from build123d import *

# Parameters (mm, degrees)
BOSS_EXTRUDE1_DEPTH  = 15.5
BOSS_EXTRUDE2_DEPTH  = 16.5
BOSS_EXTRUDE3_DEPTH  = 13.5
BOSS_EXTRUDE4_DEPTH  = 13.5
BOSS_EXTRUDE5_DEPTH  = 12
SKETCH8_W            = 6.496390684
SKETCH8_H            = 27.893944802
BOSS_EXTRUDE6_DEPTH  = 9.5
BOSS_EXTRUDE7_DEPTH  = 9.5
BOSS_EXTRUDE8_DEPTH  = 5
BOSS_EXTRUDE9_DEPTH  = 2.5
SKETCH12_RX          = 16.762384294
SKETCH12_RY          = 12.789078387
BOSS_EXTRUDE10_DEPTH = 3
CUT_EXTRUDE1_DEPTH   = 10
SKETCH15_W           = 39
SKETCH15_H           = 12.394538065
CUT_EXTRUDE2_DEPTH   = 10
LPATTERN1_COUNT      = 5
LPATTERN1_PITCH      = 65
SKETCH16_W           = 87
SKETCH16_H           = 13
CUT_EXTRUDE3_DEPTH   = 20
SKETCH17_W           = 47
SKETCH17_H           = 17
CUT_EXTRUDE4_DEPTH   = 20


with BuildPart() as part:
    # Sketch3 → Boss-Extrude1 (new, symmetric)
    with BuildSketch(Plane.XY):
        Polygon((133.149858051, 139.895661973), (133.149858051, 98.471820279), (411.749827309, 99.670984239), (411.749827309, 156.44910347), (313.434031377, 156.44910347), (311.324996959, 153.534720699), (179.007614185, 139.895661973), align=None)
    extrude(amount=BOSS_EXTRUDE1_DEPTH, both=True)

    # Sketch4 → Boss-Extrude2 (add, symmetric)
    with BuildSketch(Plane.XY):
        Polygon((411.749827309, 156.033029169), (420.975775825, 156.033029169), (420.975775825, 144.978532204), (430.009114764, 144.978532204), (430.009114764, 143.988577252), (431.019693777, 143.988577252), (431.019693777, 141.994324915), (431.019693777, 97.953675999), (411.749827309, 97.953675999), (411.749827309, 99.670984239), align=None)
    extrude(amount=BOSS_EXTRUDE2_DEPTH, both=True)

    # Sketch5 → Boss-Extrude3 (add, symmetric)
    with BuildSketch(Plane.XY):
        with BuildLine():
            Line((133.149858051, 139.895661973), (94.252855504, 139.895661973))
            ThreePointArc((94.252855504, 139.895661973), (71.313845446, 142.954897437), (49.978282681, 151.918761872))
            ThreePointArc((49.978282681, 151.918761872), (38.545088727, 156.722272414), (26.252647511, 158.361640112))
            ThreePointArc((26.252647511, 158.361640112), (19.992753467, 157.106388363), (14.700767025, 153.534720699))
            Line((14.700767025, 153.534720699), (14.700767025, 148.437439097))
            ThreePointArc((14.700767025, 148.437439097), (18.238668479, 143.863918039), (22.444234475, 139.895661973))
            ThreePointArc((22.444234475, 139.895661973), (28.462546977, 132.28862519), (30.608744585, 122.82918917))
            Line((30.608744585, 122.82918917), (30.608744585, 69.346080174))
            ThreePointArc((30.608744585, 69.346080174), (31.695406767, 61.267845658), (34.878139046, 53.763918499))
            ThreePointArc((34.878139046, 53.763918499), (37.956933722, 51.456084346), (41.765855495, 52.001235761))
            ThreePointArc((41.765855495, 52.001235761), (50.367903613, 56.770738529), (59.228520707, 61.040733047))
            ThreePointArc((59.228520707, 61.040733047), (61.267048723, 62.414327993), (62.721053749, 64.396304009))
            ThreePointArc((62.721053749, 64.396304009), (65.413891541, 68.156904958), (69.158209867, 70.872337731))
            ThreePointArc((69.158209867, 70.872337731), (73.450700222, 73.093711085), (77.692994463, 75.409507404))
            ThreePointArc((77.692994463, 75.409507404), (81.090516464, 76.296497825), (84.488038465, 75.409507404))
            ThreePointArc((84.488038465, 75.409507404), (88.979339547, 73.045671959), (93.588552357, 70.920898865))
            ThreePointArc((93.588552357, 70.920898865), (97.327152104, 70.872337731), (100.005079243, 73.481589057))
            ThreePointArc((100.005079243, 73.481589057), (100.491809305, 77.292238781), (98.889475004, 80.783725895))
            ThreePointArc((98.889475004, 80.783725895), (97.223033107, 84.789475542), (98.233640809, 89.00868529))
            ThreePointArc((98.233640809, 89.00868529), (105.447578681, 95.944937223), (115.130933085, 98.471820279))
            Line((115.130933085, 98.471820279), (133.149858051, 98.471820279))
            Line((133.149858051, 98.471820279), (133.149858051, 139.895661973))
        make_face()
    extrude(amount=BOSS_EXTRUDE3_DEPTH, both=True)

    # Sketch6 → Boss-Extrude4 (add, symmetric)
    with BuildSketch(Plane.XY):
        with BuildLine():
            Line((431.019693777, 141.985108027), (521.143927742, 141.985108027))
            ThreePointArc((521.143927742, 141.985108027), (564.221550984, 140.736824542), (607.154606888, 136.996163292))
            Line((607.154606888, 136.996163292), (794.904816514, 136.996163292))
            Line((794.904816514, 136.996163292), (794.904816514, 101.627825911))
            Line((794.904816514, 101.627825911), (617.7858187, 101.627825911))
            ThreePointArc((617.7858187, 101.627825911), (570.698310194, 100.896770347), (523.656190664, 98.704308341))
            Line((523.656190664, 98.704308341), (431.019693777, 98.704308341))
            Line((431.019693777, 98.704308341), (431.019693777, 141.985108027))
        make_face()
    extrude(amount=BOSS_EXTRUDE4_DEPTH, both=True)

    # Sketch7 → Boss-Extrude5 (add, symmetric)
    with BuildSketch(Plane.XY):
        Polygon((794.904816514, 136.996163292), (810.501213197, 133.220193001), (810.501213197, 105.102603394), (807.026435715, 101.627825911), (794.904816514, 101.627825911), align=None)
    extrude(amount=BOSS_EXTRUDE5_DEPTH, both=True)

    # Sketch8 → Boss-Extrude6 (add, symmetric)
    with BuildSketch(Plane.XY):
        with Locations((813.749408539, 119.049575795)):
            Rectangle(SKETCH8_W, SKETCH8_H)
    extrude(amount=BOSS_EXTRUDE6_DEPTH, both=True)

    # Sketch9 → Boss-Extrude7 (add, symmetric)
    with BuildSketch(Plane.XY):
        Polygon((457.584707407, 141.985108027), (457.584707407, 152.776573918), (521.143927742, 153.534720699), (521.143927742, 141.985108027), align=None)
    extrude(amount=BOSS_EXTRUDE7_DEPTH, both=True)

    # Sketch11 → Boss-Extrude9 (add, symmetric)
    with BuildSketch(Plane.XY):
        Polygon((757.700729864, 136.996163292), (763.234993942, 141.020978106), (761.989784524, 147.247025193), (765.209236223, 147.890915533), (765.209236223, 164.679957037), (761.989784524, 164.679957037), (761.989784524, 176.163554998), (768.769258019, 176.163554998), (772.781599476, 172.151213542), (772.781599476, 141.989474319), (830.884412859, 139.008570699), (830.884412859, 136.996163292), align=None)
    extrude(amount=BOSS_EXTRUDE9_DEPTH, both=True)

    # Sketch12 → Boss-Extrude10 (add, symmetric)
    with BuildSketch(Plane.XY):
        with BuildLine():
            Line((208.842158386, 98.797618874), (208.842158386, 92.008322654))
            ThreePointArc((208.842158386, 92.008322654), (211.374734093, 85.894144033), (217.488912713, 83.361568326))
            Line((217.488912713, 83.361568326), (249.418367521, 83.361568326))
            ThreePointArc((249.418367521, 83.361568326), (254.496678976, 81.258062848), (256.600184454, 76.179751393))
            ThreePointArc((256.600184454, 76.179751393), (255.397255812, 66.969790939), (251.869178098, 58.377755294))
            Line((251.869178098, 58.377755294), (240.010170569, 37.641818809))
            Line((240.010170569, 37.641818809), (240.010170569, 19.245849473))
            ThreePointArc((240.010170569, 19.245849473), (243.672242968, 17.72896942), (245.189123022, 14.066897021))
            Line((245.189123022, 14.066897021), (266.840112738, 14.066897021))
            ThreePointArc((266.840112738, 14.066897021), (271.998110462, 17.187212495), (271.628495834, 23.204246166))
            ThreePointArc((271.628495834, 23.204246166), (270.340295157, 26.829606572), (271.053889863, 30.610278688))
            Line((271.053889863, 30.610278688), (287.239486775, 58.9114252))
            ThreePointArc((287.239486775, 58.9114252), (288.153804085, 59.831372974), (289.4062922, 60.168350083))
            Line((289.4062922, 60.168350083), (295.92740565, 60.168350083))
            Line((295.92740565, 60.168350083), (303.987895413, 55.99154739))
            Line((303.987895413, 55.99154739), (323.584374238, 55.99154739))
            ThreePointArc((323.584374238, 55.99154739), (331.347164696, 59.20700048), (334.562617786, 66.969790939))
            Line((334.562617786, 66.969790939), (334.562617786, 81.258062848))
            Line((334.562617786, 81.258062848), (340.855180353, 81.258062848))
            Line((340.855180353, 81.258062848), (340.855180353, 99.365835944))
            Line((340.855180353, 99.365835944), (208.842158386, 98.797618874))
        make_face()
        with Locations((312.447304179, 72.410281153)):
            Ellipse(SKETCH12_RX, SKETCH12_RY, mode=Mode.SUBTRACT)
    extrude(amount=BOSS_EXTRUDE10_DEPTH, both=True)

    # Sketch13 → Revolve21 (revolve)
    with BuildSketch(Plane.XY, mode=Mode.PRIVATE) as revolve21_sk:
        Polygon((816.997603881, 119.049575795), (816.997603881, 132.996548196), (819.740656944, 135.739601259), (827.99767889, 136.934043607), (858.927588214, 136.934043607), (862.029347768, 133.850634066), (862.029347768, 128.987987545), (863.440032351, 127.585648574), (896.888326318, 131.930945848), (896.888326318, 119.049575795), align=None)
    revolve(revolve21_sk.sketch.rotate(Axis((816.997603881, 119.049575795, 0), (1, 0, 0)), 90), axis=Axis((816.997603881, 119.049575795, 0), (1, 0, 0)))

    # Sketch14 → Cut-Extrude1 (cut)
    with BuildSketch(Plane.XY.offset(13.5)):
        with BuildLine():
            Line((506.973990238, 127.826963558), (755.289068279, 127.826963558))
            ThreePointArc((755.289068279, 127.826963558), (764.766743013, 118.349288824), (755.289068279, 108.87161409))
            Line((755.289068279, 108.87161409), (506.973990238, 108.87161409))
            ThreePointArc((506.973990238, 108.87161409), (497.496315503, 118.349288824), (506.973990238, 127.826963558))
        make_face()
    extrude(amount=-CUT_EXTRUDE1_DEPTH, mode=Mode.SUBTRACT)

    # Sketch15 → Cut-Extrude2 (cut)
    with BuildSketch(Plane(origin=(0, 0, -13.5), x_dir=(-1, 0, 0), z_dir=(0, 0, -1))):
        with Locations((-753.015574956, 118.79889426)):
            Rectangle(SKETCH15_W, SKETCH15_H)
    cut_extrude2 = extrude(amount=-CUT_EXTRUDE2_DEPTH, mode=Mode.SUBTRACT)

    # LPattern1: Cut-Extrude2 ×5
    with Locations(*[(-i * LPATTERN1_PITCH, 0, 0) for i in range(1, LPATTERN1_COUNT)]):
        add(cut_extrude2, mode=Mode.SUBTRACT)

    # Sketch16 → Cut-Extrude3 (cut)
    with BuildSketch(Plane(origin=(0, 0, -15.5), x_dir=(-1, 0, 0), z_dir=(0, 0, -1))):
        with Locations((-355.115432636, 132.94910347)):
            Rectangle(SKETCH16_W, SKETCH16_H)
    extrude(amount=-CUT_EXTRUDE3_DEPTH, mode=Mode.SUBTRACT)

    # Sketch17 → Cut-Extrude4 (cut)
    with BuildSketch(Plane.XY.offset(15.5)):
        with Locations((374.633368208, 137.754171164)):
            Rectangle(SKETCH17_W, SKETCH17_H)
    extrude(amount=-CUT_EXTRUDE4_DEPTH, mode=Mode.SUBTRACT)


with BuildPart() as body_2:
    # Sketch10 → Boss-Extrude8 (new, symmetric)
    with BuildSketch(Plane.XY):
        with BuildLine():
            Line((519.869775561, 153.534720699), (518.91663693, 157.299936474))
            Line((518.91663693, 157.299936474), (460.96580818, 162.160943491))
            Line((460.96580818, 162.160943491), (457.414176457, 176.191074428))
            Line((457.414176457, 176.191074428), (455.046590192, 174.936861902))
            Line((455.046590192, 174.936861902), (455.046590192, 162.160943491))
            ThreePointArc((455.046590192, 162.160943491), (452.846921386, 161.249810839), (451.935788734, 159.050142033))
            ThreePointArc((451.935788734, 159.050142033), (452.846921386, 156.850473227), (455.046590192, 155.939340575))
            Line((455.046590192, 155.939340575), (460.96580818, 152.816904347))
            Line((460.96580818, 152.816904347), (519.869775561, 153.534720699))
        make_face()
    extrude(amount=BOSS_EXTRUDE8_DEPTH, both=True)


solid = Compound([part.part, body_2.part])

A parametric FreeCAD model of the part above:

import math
import FreeCAD as App
import Part
import Sketcher
from FreeCAD import Vector
Q = App.Units.Quantity


def add_polygon(sketch, points):
    """Adds a closed chain of lines whose ends are joined by coincident constraints."""
    first, n = sketch.GeometryCount, len(points)
    for a, b in zip(points, points[1:] + points[:1]):
        sketch.addGeometry(Part.LineSegment(App.Vector(*a, 0), App.Vector(*b, 0)), False)
    for i in range(n):
        sketch.addConstraint(Sketcher.Constraint("Coincident", first + i, 2, first + (i + 1) % n, 1))

doc = App.newDocument("Part")
params = doc.addObject("Spreadsheet::Sheet", "Params")
for row, (alias, value) in enumerate([
    ("pad1_length", "31 mm"),
    ("pad2_length", "33 mm"),
    ("pad3_length", "27 mm"),
    ("pad4_length", "27 mm"),
    ("pad5_length", "24 mm"),
    ("pad6_length", "19 mm"),
    ("pad7_length", "19 mm"),
    ("pad8_length", "5 mm"),
    ("pad9_length", "6 mm"),
    ("revolution_angle", "360 deg"),
    ("pocket1_length", "10 mm"),
    ("sketch12_width", "39 mm"),
    ("pocket2_length", "10 mm"),
    ("linearpattern_pitch", "65 mm"),
    ("sketch13_width", "87 mm"),
    ("sketch13_height", "13 mm"),
    ("pocket3_length", "20 mm"),
    ("sketch14_width", "47 mm"),
    ("sketch14_height", "17 mm"),
    ("pocket4_length", "20 mm"),
    ("pad10_length", "10 mm"),
], start=1):
    params.set(f"A{row}", alias)
    params.set(f"B{row}", "=" + value)
    params.setAlias(f"B{row}", alias)

body = doc.addObject("PartDesign::Body", "Body")

sketch1 = doc.addObject("Sketcher::SketchObject", "Sketch")
body.addObject(sketch1)
sketch1.AttachmentSupport = (doc.XY_Plane, [""])
sketch1.MapMode = "FlatFace"
add_polygon(sketch1, [(133.1, 139.9), (133.1, 98.5), (411.7, 99.7), (411.7, 156.4), (313.4, 156.4), (311.3, 153.5), (179, 139.9)])
sketch1.addConstraint([
    Sketcher.Constraint("Vertical", 0),
    Sketcher.Constraint("Vertical", 2),
    Sketcher.Constraint("Horizontal", 3),
    Sketcher.Constraint("Horizontal", 6),
    Sketcher.Constraint("DistanceY", 0, 2, 0, 1, 41.423842),
    Sketcher.Constraint("DistanceY", 2, 1, 2, 2, 56.778119),
    Sketcher.Constraint("DistanceY", 0, 2, 4, 2, 55.0629),
    Sketcher.Constraint("Distance", 1, 278.60255),
    Sketcher.Constraint("Distance", 4, 3.597451),
    Sketcher.Constraint("Distance", 5, 133.018471),
    Sketcher.Constraint("DistanceX", 3, 2, 3, 1, 98.315796),
    Sketcher.Constraint("DistanceX", 6, 2, 6, 1, 45.857756),
    Sketcher.Constraint("DistanceX", -1, 1, 0, 2, 133.149858),
    Sketcher.Constraint("DistanceY", -1, 1, 0, 2, 98.47182),
])
pad1 = doc.addObject("PartDesign::Pad", "Pad")
body.addObject(pad1)
pad1.Profile = sketch1
pad1.setExpression("Length", "Params.pad1_length")
pad1.Midplane = True

sketch2 = doc.addObject("Sketcher::SketchObject", "Sketch001")
body.addObject(sketch2)
sketch2.AttachmentSupport = (doc.XY_Plane, [""])
sketch2.MapMode = "FlatFace"
add_polygon(sketch2, [(421, 156), (411.7, 156), (411.7, 98), (431, 98), (431, 144), (430, 144), (430, 145), (421, 145)])
sketch2.addConstraint([
    Sketcher.Constraint("Horizontal", 0),
    Sketcher.Constraint("Vertical", 1),
    Sketcher.Constraint("Horizontal", 2),
    Sketcher.Constraint("Vertical", 3),
    Sketcher.Constraint("Horizontal", 4),
    Sketcher.Constraint("Vertical", 5),
    Sketcher.Constraint("Horizontal", 6),
    Sketcher.Constraint("Vertical", 7),
    Sketcher.Constraint("DistanceY", 3, 1, 3, 2, 46.034901),
    Sketcher.Constraint("DistanceX", 0, 2, 0, 1, 9.225949),
    Sketcher.Constraint("DistanceX", 4, 2, 4, 1, 1.010579),
    Sketcher.Constraint("DistanceX", 6, 2, 6, 1, 9.033339),
    Sketcher.Constraint("DistanceY", 1, 2, 1, 1, 58.079353),
    Sketcher.Constraint("DistanceY", 5, 1, 5, 2, 0.989955),
    Sketcher.Constraint("DistanceY", -1, 1, 0, 2, 156.033029),
    Sketcher.Constraint("DistanceX", -1, 1, 0, 2, 411.749827),
])
pad2 = doc.addObject("PartDesign::Pad", "Pad001")
body.addObject(pad2)
pad2.Profile = sketch2
pad2.setExpression("Length", "Params.pad2_length")
pad2.Midplane = True

sketch3 = doc.addObject("Sketcher::SketchObject", "Sketch002")
body.addObject(sketch3)
sketch3.AttachmentSupport = (doc.XY_Plane, [""])
sketch3.MapMode = "FlatFace"
sketch3.addGeometry([
    Part.LineSegment(Vector(133.149858, 139.895662, 0), Vector(94.252856, 139.895662, 0)),
    Part.ArcOfCircle(Part.Circle(Vector(94.252856, 227.426862, 0), Vector(0, 0, 1), 87.5312), math.radians(-120.385453), math.radians(-90)),
    Part.ArcOfCircle(Part.Circle(Vector(26.252648, 111.455861, 0), Vector(0, 0, 1), 46.905779), math.radians(59.614547), math.radians(90)),
    Part.ArcOfCircle(Part.Circle(Vector(26.252648, 142.125084, 0), Vector(0, 0, 1), 16.236556), math.radians(90), math.radians(135.354936)),
    Part.LineSegment(Vector(14.700767, 153.534721, 0), Vector(14.700767, 148.437439, 0)),
    Part.ArcOfCircle(Part.Circle(Vector(45.725426, 168.781778, 0), Vector(0, 0, 1), 37.100156), math.radians(-146.745245), math.radians(-128.867589)),
    Part.ArcOfCircle(Part.Circle(Vector(8.689259, 122.829189, 0), Vector(0, 0, 1), 21.919485), math.radians(0), math.radians(51.132411)),
    Part.LineSegment(Vector(30.608745, 122.829189, 0), Vector(30.608745, 69.34608, 0)),
    Part.ArcOfCircle(Part.Circle(Vector(61.178828, 69.34608, 0), Vector(0, 0, 1), 30.570084), math.radians(180), math.radians(210.645134)),
    Part.ArcOfCircle(Part.Circle(Vector(39.203339, 56.326435, 0), Vector(0, 0, 1), 5.02731), math.radians(-149.354866), math.radians(-59.354866)),
    Part.ArcOfCircle(Part.Circle(Vector(129.437104, -95.976581, 0), Vector(0, 0, 1), 171.999076), math.radians(114.091287), math.radians(120.645134)),
    Part.ArcOfCircle(Part.Circle(Vector(56.305087, 67.578819, 0), Vector(0, 0, 1), 7.161916), math.radians(-65.908714), math.radians(-26.382812)),
    Part.ArcOfCircle(Part.Circle(Vector(75.648181, 57.984055, 0), Vector(0, 0, 1), 14.430092), math.radians(116.727811), math.radians(153.617188)),
    Part.ArcOfCircle(Part.Circle(Vector(-29.089252, 265.979688, 0), Vector(0, 0, 1), 218.447802), math.radians(-63.272189), math.radians(-60.736769)),
    Part.ArcOfCircle(Part.Circle(Vector(81.090516, 69.34608, 0), Vector(0, 0, 1), 6.950418), math.radians(60.736769), math.radians(119.263231)),
    Part.ArcOfCircle(Part.Circle(Vector(131.726381, 159.713965, 0), Vector(0, 0, 1), 96.636963), math.radians(-119.263231), math.radians(-113.24418)),
    Part.ArcOfCircle(Part.Circle(Vector(95.516471, 75.409507, 0), Vector(0, 0, 1), 4.885128), math.radians(-113.24418), math.radians(-23.24418)),
    Part.ArcOfCircle(Part.Circle(Vector(93.588552, 76.237575, 0), Vector(0, 0, 1), 6.983357), math.radians(-23.24418), math.radians(40.616889)),
    Part.ArcOfCircle(Part.Circle(Vector(104.209881, 85.346586, 0), Vector(0, 0, 1), 7.009024), math.radians(148.501015), math.radians(220.616889)),
    Part.ArcOfCircle(Part.Circle(Vector(115.130933, 78.654423, 0), Vector(0, 0, 1), 19.817397), math.radians(90), math.radians(148.501015)),
    Part.LineSegment(Vector(115.130933, 98.47182, 0), Vector(133.149858, 98.47182, 0)),
    Part.LineSegment(Vector(133.149858, 98.47182, 0), Vector(133.149858, 139.895662, 0)),
], False)
sketch3.addConstraint([
    Sketcher.Constraint("Coincident", 0, 2, 1, 2),
    Sketcher.Constraint("Coincident", 1, 1, 2, 1),
    Sketcher.Constraint("Coincident", 2, 2, 3, 1),
    Sketcher.Constraint("Coincident", 3, 2, 4, 1),
    Sketcher.Constraint("Coincident", 4, 2, 5, 1),
    Sketcher.Constraint("Coincident", 5, 2, 6, 2),
    Sketcher.Constraint("Coincident", 6, 1, 7, 1),
    Sketcher.Constraint("Coincident", 7, 2, 8, 1),
    Sketcher.Constraint("Coincident", 8, 2, 9, 1),
    Sketcher.Constraint("Coincident", 9, 2, 10, 2),
    Sketcher.Constraint("Coincident", 10, 1, 11, 1),
    Sketcher.Constraint("Coincident", 11, 2, 12, 2),
    Sketcher.Constraint("Coincident", 12, 1, 13, 1),
    Sketcher.Constraint("Coincident", 13, 2, 14, 2),
    Sketcher.Constraint("Coincident", 14, 1, 15, 1),
    Sketcher.Constraint("Coincident", 15, 2, 16, 1),
    Sketcher.Constraint("Coincident", 16, 2, 17, 1),
    Sketcher.Constraint("Coincident", 17, 2, 18, 2),
    Sketcher.Constraint("Coincident", 18, 1, 19, 2),
    Sketcher.Constraint("Coincident", 19, 1, 20, 1),
    Sketcher.Constraint("Coincident", 20, 2, 21, 1),
    Sketcher.Constraint("Coincident", 21, 2, 0, 1),
    Sketcher.Constraint("Horizontal", 0),
    Sketcher.Constraint("Vertical", 4),
    Sketcher.Constraint("Vertical", 7),
    Sketcher.Constraint("Horizontal", 20),
    Sketcher.Constraint("Vertical", 21),
    Sketcher.Constraint("Radius", 1, 87.5312),
    Sketcher.Constraint("Radius", 13, 218.447802),
    Sketcher.Constraint("Radius", 2, 46.905779),
    Sketcher.Constraint("Radius", 9, 5.02731),
    Sketcher.Constraint("Radius", 12, 14.430092),
    Sketcher.Constraint("Radius", 16, 4.885128),
    Sketcher.Constraint("Radius", 3, 16.236556),
    Sketcher.Constraint("Radius", 5, 37.100156),
    Sketcher.Constraint("Radius", 6, 21.919485),
    Sketcher.Constraint("Radius", 8, 30.570084),
    Sketcher.Constraint("Radius", 10, 171.999076),
    Sketcher.Constraint("Radius", 11, 7.161916),
    Sketcher.Constraint("Radius", 14, 6.950418),
    Sketcher.Constraint("Radius", 15, 96.636963),
    Sketcher.Constraint("Radius", 17, 6.983357),
    Sketcher.Constraint("Radius", 18, 7.009024),
    Sketcher.Constraint("Radius", 19, 19.817397),
    Sketcher.Constraint("DistanceY", 2, 3, 1, 3, 115.971001),
    Sketcher.Constraint("DistanceY", 4, 2, 4, 1, 5.097282),
    Sketcher.Constraint("DistanceY", 7, 2, 7, 1, 53.483109),
    Sketcher.Constraint("DistanceY", 21, 1, 21, 2, 41.423842),
    Sketcher.Constraint("DistanceY", -1, 1, 15, 2, 70.920899),
    Sketcher.Constraint("DistanceY", 8, 3, 5, 3, 99.435698),
    Sketcher.Constraint("DistanceX", 13, 3, 3, 3, 55.3419),
    Sketcher.Constraint("DistanceY", 6, 3, 13, 3, 143.150499),
    Sketcher.Constraint("DistanceX", 13, 3, 2, 3, 55.3419),
    Sketcher.Constraint("DistanceX", 12, 3, 18, 3, 28.5617),
    Sketcher.Constraint("DistanceY", 0, 2, 1, 1, 12.0231),
    Sketcher.Constraint("DistanceY", 4, 2, 2, 2, 9.924201),
    Sketcher.Constraint("DistanceX", 8, 2, 9, 3, 4.3252),
    Sketcher.Constraint("DistanceY", 8, 2, 11, 3, 13.814901),
    Sketcher.Constraint("DistanceY", 9, 2, 9, 3, 4.3252),
    Sketcher.Constraint("DistanceX", 16, 2, 18, 3, 4.204802),
    Sketcher.Constraint("DistanceY", 18, 3, 18, 1, 3.662099),
    Sketcher.Constraint("DistanceX", 0, 2, 0, 1, 38.897003),
    Sketcher.Constraint("DistanceX", 20, 1, 20, 2, 18.018925),
    Sketcher.Constraint("DistanceY", -1, 1, 2, 3, 111.455861),
    Sketcher.Constraint("DistanceY", -1, 1, 5, 3, 168.781778),
    Sketcher.Constraint("DistanceX", -1, 1, 6, 3, 8.689259),
    Sketcher.Constraint("DistanceY", -1, 1, 6, 3, 122.829189),
    Sketcher.Constraint("DistanceX", -1, 1, 9, 3, 39.203339),
    Sketcher.Constraint("DistanceY", 10, 3, -1, 1, 95.976581),
    Sketcher.Constraint("DistanceY", -1, 1, 14, 3, 69.34608),
    Sketcher.Constraint("DistanceX", -1, 1, 15, 3, 131.726381),
    Sketcher.Constraint("DistanceX", -1, 1, 16, 3, 95.516471),
    Sketcher.Constraint("DistanceY", -1, 1, 5, 2, 139.895662),
    Sketcher.Constraint("DistanceY", -1, 1, 6, 1, 122.829189),
    Sketcher.Constraint("DistanceX", -1, 1, 10, 1, 59.228521),
    Sketcher.Constraint("DistanceX", -1, 1, 12, 1, 69.15821),
    Sketcher.Constraint("DistanceX", -1, 1, 14, 1, 84.488038),
    Sketcher.Constraint("DistanceX", -1, 1, 20, 2, 133.149858),
    Sketcher.Constraint("DistanceX", 17, 3, 16, 3, 1.927918),
    Sketcher.Constraint("DistanceX", 2, 2, 5, 3, 19.472778),
    Sketcher.Constraint("DistanceY", 10, 1, 11, 2, 3.355571),
    Sketcher.Constraint("DistanceY", 12, 1, 13, 2, 4.53717),
    Sketcher.Constraint("DistanceY", 16, 3, 17, 2, 5.374218),
])
pad3 = doc.addObject("PartDesign::Pad", "Pad002")
body.addObject(pad3)
pad3.Profile = sketch3
pad3.setExpression("Length", "Params.pad3_length")
pad3.Midplane = True

sketch4 = doc.addObject("Sketcher::SketchObject", "Sketch003")
body.addObject(sketch4)
sketch4.AttachmentSupport = (doc.XY_Plane, [""])
sketch4.MapMode = "FlatFace"
sketch4.addGeometry([
    Part.LineSegment(Vector(521, 142, 0), Vector(431, 142, 0)),
    Part.LineSegment(Vector(431, 142, 0), Vector(431, 99, 0)),
    Part.LineSegment(Vector(431, 99, 0), Vector(524, 99, 0)),
    Part.ArcOfCircle(Part.Circle(Vector(618, -1415, 0), Vector(0, 0, 1), 1517), math.radians(90), math.radians(93.56)),
    Part.LineSegment(Vector(618, 102, 0), Vector(795, 102, 0)),
    Part.LineSegment(Vector(795, 102, 0), Vector(795, 137, 0)),
    Part.LineSegment(Vector(795, 137, 0), Vector(607, 137, 0)),
    Part.ArcOfCircle(Part.Circle(Vector(521, -602, 0), Vector(0, 0, 1), 744), math.radians(83.36), math.radians(90)),
], False)
sketch4.addConstraint([
    Sketcher.Constraint("Coincident", 0, 2, 1, 1),
    Sketcher.Constraint("Coincident", 1, 2, 2, 1),
    Sketcher.Constraint("Coincident", 2, 2, 3, 2),
    Sketcher.Constraint("Tangent", 3, 1, 4, 1),
    Sketcher.Constraint("Coincident", 4, 2, 5, 1),
    Sketcher.Constraint("Coincident", 5, 2, 6, 1),
    Sketcher.Constraint("Coincident", 6, 2, 7, 1),
    Sketcher.Constraint("Tangent", 7, 2, 0, 1),
    Sketcher.Constraint("Horizontal", 0),
    Sketcher.Constraint("Vertical", 1),
    Sketcher.Constraint("Horizontal", 2),
    Sketcher.Constraint("Horizontal", 4),
    Sketcher.Constraint("Vertical", 5),
    Sketcher.Constraint("Horizontal", 6),
    Sketcher.Constraint("Radius", 7, 743.917491),
    Sketcher.Constraint("DistanceY", 1, 2, 1, 1, 43.2808),
    Sketcher.Constraint("Radius", 3, 1516.825813),
    Sketcher.Constraint("DistanceX", 6, 2, 6, 1, 187.75021),
    Sketcher.Constraint("DistanceX", 0, 2, 0, 1, 90.124234),
    Sketcher.Constraint("DistanceX", 2, 1, 2, 2, 92.636497),
    Sketcher.Constraint("DistanceX", 4, 1, 4, 2, 177.118998),
    Sketcher.Constraint("DistanceY", 5, 1, 5, 2, 35.368337),
    Sketcher.Constraint("DistanceX", -1, 1, 3, 3, 617.785819),
    Sketcher.Constraint("DistanceY", -1, 1, 0, 2, 141.985108),
])
pad4 = doc.addObject("PartDesign::Pad", "Pad003")
body.addObject(pad4)
pad4.Profile = sketch4
pad4.setExpression("Length", "Params.pad4_length")
pad4.Midplane = True

sketch5 = doc.addObject("Sketcher::SketchObject", "Sketch004")
body.addObject(sketch5)
sketch5.AttachmentSupport = (doc.XY_Plane, [""])
sketch5.MapMode = "FlatFace"
add_polygon(sketch5, [(810.5, 133.2), (794.9, 137), (794.9, 101.6), (807, 101.6), (810.5, 105.1)])
sketch5.addConstraint([
    Sketcher.Constraint("Vertical", 1),
    Sketcher.Constraint("Horizontal", 2),
    Sketcher.Constraint("Vertical", 4),
    Sketcher.Constraint("Angle", 3, Q("45 deg")),
    Sketcher.Constraint("DistanceX", 2, 1, 2, 2, 12.121619),
    Sketcher.Constraint("DistanceY", 4, 1, 4, 2, 28.11759),
    Sketcher.Constraint("Distance", 0, 16.046979),
    Sketcher.Constraint("DistanceY", 1, 2, 1, 1, 35.368337),
    Sketcher.Constraint("DistanceX", -1, 1, 0, 2, 794.904817),
    Sketcher.Constraint("DistanceY", -1, 1, 0, 2, 136.996163),
])
pad5 = doc.addObject("PartDesign::Pad", "Pad004")
body.addObject(pad5)
pad5.Profile = sketch5
pad5.setExpression("Length", "Params.pad5_length")
pad5.Midplane = True

sketch6 = doc.addObject("Sketcher::SketchObject", "Sketch005")
body.addObject(sketch6)
sketch6.AttachmentSupport = (doc.XY_Plane, [""])
sketch6.MapMode = "FlatFace"
add_polygon(sketch6, [(811, 133), (811, 105), (817, 105), (817, 133)])
sketch6.addConstraint([
    Sketcher.Constraint("Vertical", 0),
    Sketcher.Constraint("Horizontal", 1),
    Sketcher.Constraint("Vertical", 2),
    Sketcher.Constraint("Horizontal", 3),
    Sketcher.Constraint("DistanceX", 1, 1, 1, 2, 6.496391),
    Sketcher.Constraint("DistanceY", 0, 2, 0, 1, 27.893945),
    Sketcher.Constraint("DistanceY", -1, 1, 2, 2, 132.996548),
    Sketcher.Constraint("DistanceX", -1, 1, 0, 2, 810.501213),
])
pad6 = doc.addObject("PartDesign::Pad", "Pad005")
body.addObject(pad6)
pad6.Profile = sketch6
pad6.setExpression("Length", "Params.pad6_length")
pad6.Midplane = True

sketch7 = doc.addObject("Sketcher::SketchObject", "Sketch006")
body.addObject(sketch7)
sketch7.AttachmentSupport = (doc.XY_Plane, [""])
sketch7.MapMode = "FlatFace"
add_polygon(sketch7, [(457.584707, 152.776574), (457.584707, 141.985108), (521.143928, 141.985108), (521.143928, 153.534721)])
sketch7.addConstraint([
    Sketcher.Constraint("Vertical", 0),
    Sketcher.Constraint("Horizontal", 1),
    Sketcher.Constraint("Vertical", 2),
    Sketcher.Constraint("DistanceX", 1, 1, 1, 2, 63.55922),
    Sketcher.Constraint("Distance", 3, 63.563742),
    Sketcher.Constraint("DistanceY", 0, 2, 0, 1, 10.791466),
    Sketcher.Constraint("DistanceY", -1, 1, 0, 2, 141.985108),
    Sketcher.Constraint("DistanceX", -1, 1, 0, 2, 457.584707),
])
pad7 = doc.addObject("PartDesign::Pad", "Pad006")
body.addObject(pad7)
pad7.Profile = sketch7
pad7.setExpression("Length", "Params.pad7_length")
pad7.Midplane = True

sketch8 = doc.addObject("Sketcher::SketchObject", "Sketch007")
body.addObject(sketch8)
sketch8.AttachmentSupport = (doc.XY_Plane, [""])
sketch8.MapMode = "FlatFace"
add_polygon(sketch8, [(763.234994, 141.020978), (757.70073, 136.996163), (830.884413, 136.996163), (830.884413, 139.008571), (772.781599, 141.989474), (772.781599, 172.151214), (768.769258, 176.163555), (761.989785, 176.163555), (761.989785, 164.679957), (765.209236, 164.679957), (765.209236, 147.890916), (761.989785, 147.247025)])
sketch8.addConstraint([
    Sketcher.Constraint("Horizontal", 1),
    Sketcher.Constraint("Vertical", 2),
    Sketcher.Constraint("Vertical", 4),
    Sketcher.Constraint("Horizontal", 6),
    Sketcher.Constraint("Vertical", 7),
    Sketcher.Constraint("Horizontal", 8),
    Sketcher.Constraint("Vertical", 9),
    Sketcher.Constraint("Perpendicular", 10, 11),
    Sketcher.Constraint("Vertical", 7, 2, 10, 2),
    Sketcher.Constraint("Angle", 5, Q("135 deg")),
    Sketcher.Constraint("DistanceX", 8, 1, 8, 2, 3.219452),
    Sketcher.Constraint("DistanceY", 4, 1, 4, 2, 30.161739),
    Sketcher.Constraint("DistanceY", 9, 2, 9, 1, 16.789042),
    Sketcher.Constraint("DistanceX", -1, 1, 3, 2, 772.781599),
    Sketcher.Constraint("DistanceY", 9, 2, 4, 2, 24.260298),
    Sketcher.Constraint("Distance", 0, 6.843041),
    Sketcher.Constraint("Distance", 3, 58.179229),
    Sketcher.Constraint("Distance", 10, 3.283209),
    Sketcher.Constraint("DistanceX", 1, 1, 1, 2, 73.183683),
    Sketcher.Constraint("DistanceX", 6, 2, 6, 1, 6.779473),
    Sketcher.Constraint("DistanceY", 2, 1, 2, 2, 2.012407),
    Sketcher.Constraint("DistanceY", 7, 2, 7, 1, 11.483598),
    Sketcher.Constraint("DistanceX", -1, 1, 0, 2, 757.70073),
    Sketcher.Constraint("DistanceY", -1, 1, 2, 2, 139.008571),
])
pad8 = doc.addObject("PartDesign::Pad", "Pad007")
body.addObject(pad8)
pad8.Profile = sketch8
pad8.setExpression("Length", "Params.pad8_length")
pad8.Midplane = True

sketch9 = doc.addObject("Sketcher::SketchObject", "Sketch008")
body.addObject(sketch9)
sketch9.AttachmentSupport = (doc.XY_Plane, [""])
sketch9.MapMode = "FlatFace"
sketch9.addGeometry([
    Part.LineSegment(Vector(208.842158, 98.797619, 0), Vector(208.842158, 92.008323, 0)),
    Part.ArcOfCircle(Part.Circle(Vector(217.488913, 92.008323, 0), Vector(0, 0, 1), 8.646754), math.radians(180), math.radians(270)),
    Part.LineSegment(Vector(217.488913, 83.361568, 0), Vector(249.418368, 83.361568, 0)),
    Part.ArcOfCircle(Part.Circle(Vector(249.418368, 76.179751, 0), Vector(0, 0, 1), 7.181817), math.radians(0), math.radians(90)),
    Part.ArcOfCircle(Part.Circle(Vector(220.741695, 76.179751, 0), Vector(0, 0, 1), 35.85849), math.radians(-29.7655), math.radians(0)),
    Part.LineSegment(Vector(251.869178, 58.377755, 0), Vector(240.010171, 37.641819, 0)),
    Part.LineSegment(Vector(240.010171, 37.641819, 0), Vector(240.010171, 19.245849, 0)),
    Part.ArcOfCircle(Part.Circle(Vector(240.010171, 14.066897, 0), Vector(0, 0, 1), 5.178952), math.radians(0), math.radians(90)),
    Part.LineSegment(Vector(245.189123, 14.066897, 0), Vector(266.840113, 14.066897, 0)),
    Part.ArcOfCircle(Part.Circle(Vector(266.840113, 19.890236, 0), Vector(0, 0, 1), 5.823339), math.radians(-90), math.radians(34.686868)),
    Part.ArcOfCircle(Part.Circle(Vector(277.69076, 27.399901, 0), Vector(0, 0, 1), 7.372555), math.radians(154.186081), math.radians(214.686868)),
    Part.LineSegment(Vector(271.05389, 30.610279, 0), Vector(287.239487, 58.911425, 0)),
    Part.ArcOfCircle(Part.Circle(Vector(289.406292, 57.672216, 0), Vector(0, 0, 1), 2.496134), math.radians(90), math.radians(150.2345)),
    Part.LineSegment(Vector(289.406292, 60.16835, 0), Vector(295.927406, 60.16835, 0)),
    Part.LineSegment(Vector(295.927406, 60.16835, 0), Vector(303.987895, 55.991547, 0)),
    Part.LineSegment(Vector(303.987895, 55.991547, 0), Vector(323.584374, 55.991547, 0)),
    Part.ArcOfCircle(Part.Circle(Vector(323.584374, 66.969791, 0), Vector(0, 0, 1), 10.978244), math.radians(-90), math.radians(0)),
    Part.LineSegment(Vector(334.562618, 66.969791, 0), Vector(334.562618, 81.258063, 0)),
    Part.LineSegment(Vector(334.562618, 81.258063, 0), Vector(340.85518, 81.258063, 0)),
    Part.LineSegment(Vector(340.85518, 81.258063, 0), Vector(340.85518, 99.365836, 0)),
    Part.LineSegment(Vector(340.85518, 99.365836, 0), Vector(208.842158, 98.797619, 0)),
    Part.Ellipse(Vector(329.209688, 72.410281, 0), Vector(312.447304, 85.19936, 0), Vector(312.447304, 72.410281, 0)),
], False)
sketch9.addConstraint([
    Sketcher.Constraint("Block", 21),
    Sketcher.Constraint("Tangent", 0, 2, 1, 1),
    Sketcher.Constraint("Tangent", 1, 2, 2, 1),
    Sketcher.Constraint("Tangent", 2, 2, 3, 2),
    Sketcher.Constraint("Tangent", 3, 1, 4, 2),
    Sketcher.Constraint("Tangent", 4, 1, 5, 1),
    Sketcher.Constraint("Coincident", 5, 2, 6, 1),
    Sketcher.Constraint("Coincident", 6, 2, 7, 2),
    Sketcher.Constraint("Coincident", 7, 1, 8, 1),
    Sketcher.Constraint("Tangent", 8, 2, 9, 1),
    Sketcher.Constraint("Tangent", 9, 2, 10, 2),
    Sketcher.Constraint("Coincident", 10, 1, 11, 1),
    Sketcher.Constraint("Tangent", 11, 2, 12, 2),
    Sketcher.Constraint("Tangent", 12, 1, 13, 1),
    Sketcher.Constraint("Coincident", 13, 2, 14, 1),
    Sketcher.Constraint("Coincident", 14, 2, 15, 1),
    Sketcher.Constraint("Tangent", 15, 2, 16, 1),
    Sketcher.Constraint("Tangent", 16, 2, 17, 1),
    Sketcher.Constraint("Coincident", 17, 2, 18, 1),
    Sketcher.Constraint("Coincident", 18, 2, 19, 1),
    Sketcher.Constraint("Coincident", 19, 2, 20, 1),
    Sketcher.Constraint("Coincident", 20, 2, 0, 1),
    Sketcher.Constraint("Vertical", 0),
    Sketcher.Constraint("Horizontal", 2),
    Sketcher.Constraint("Vertical", 6),
    Sketcher.Constraint("Horizontal", 8),
    Sketcher.Constraint("Horizontal", 13),
    Sketcher.Constraint("Horizontal", 15),
    Sketcher.Constraint("Vertical", 17),
    Sketcher.Constraint("Horizontal", 18),
    Sketcher.Constraint("Vertical", 19),
    Sketcher.Constraint("Parallel", 5, 11),
    Sketcher.Constraint("Horizontal", 3, 3, 4, 3),
    Sketcher.Constraint("Vertical", 7, 3, 5, 2),
    Sketcher.Constraint("Radius", 4, 35.85849),
    Sketcher.Constraint("Radius", 9, 5.823339),
    Sketcher.Constraint("Radius", 1, 8.646754),
    Sketcher.Constraint("Radius", 3, 7.181817),
    Sketcher.Constraint("Radius", 7, 5.178952),
    Sketcher.Constraint("Radius", 10, 7.372555),
    Sketcher.Constraint("Radius", 12, 2.496134),
    Sketcher.Constraint("Radius", 16, 10.978244),
    Sketcher.Constraint("DistanceX", 8, 1, 8, 2, 21.65099),
    Sketcher.Constraint("DistanceX", 15, 1, 15, 2, 19.596479),
    Sketcher.Constraint("DistanceY", 6, 2, 6, 1, 18.395969),
    Sketcher.Constraint("DistanceY", 17, 1, 17, 2, 14.288272),
    Sketcher.Constraint("DistanceY", -1, 1, 10, 3, 27.399901),
    Sketcher.Constraint("DistanceX", 1, 3, 9, 3, 49.3512),
    Sketcher.Constraint("Distance", 5, 23.887552),
    Sketcher.Constraint("Distance", 14, 9.078391),
    Sketcher.Constraint("DistanceX", 2, 1, 2, 2, 31.929455),
    Sketcher.Constraint("DistanceX", 13, 1, 13, 2, 6.521113),
    Sketcher.Constraint("DistanceX", 18, 1, 18, 2, 6.292563),
    Sketcher.Constraint("DistanceY", 0, 2, 0, 1, 6.789296),
    Sketcher.Constraint("DistanceY", 19, 1, 19, 2, 18.107773),
    Sketcher.Constraint("DistanceY", -1, 1, 3, 3, 76.179751),
    Sketcher.Constraint("DistanceX", -1, 1, 7, 3, 240.010171),
    Sketcher.Constraint("DistanceX", -1, 1, 10, 3, 277.69076),
    Sketcher.Constraint("DistanceY", -1, 1, 16, 3, 66.969791),
    Sketcher.Constraint("DistanceX", -1, 1, 10, 1, 271.05389),
    Sketcher.Constraint("DistanceY", -1, 1, 12, 1, 60.16835),
])
pad9 = doc.addObject("PartDesign::Pad", "Pad008")
body.addObject(pad9)
pad9.Profile = sketch9
pad9.setExpression("Length", "Params.pad9_length")
pad9.Midplane = True

sketch10 = doc.addObject("Sketcher::SketchObject", "Sketch009")
body.addObject(sketch10)
sketch10.AttachmentSupport = (doc.XY_Plane, [""])
sketch10.MapMode = "FlatFace"
add_polygon(sketch10, [(817, 133), (817, 119), (896.9, 119), (896.9, 131.9), (863.4, 127.6), (862, 129), (862, 133.9), (858.9, 136.9), (828, 136.9), (819.7, 135.7)])
sketch10.addGeometry(Part.LineSegment(Vector(817, 119, 0), Vector(896.9, 119, 0)), True)
sketch10.addConstraint([
    Sketcher.Constraint("Vertical", 0),
    Sketcher.Constraint("Horizontal", 1),
    Sketcher.Constraint("Vertical", 2),
    Sketcher.Constraint("Vertical", 5),
    Sketcher.Constraint("Horizontal", 7),
    Sketcher.Constraint("Horizontal", 10),
    Sketcher.Constraint("Coincident", 10, 1, 0, 2),
    Sketcher.Constraint("Parallel", 4, 6),
    Sketcher.Constraint("Vertical", 2, 2, 10, 2),
    Sketcher.Constraint("Angle", 9, Q("-135 deg")),
    Sketcher.Constraint("Angle", 4, Q("135.169983 deg")),
    Sketcher.Constraint("DistanceX", 7, 2, 7, 1, 30.929909),
    Sketcher.Constraint("DistanceY", 2, 1, 2, 2, 12.88137),
    Sketcher.Constraint("DistanceY", -1, 1, 8, 2, 135.739601),
    Sketcher.Constraint("DistanceX", 1, 1, 1, 2, 79.890722),
    Sketcher.Constraint("DistanceY", 0, 2, 0, 1, 13.946972),
    Sketcher.Constraint("DistanceY", 5, 1, 5, 2, 4.862647),
    Sketcher.Constraint("DistanceY", -1, 1, 3, 2, 127.585649),
    Sketcher.Constraint("DistanceX", -1, 1, 6, 2, 858.927588),
    Sketcher.Constraint("DistanceY", -1, 1, 9, 2, 132.996548),
    Sketcher.Constraint("DistanceX", 0, 2, 3, 2, 46.442428),
    Sketcher.Constraint("DistanceY", 3, 2, 4, 2, 1.402339),
    Sketcher.Constraint("DistanceX", 6, 2, 5, 2, 3.10176),
])
revolution = doc.addObject("PartDesign::Revolution", "Revolution")
body.addObject(revolution)
revolution.Profile = sketch10
revolution.ReferenceAxis = (sketch10, ["Axis0"])
revolution.setExpression("Angle", "Params.revolution_angle")

sketch11 = doc.addObject("Sketcher::SketchObject", "Sketch010")
body.addObject(sketch11)
sketch11.AttachmentSupport = (doc.XY_Plane, [""])
sketch11.MapMode = "FlatFace"
sketch11.AttachmentOffset = App.Placement(Vector(0, 0, 13.5), App.Rotation())
sketch11.addGeometry([
    Part.LineSegment(Vector(755, 128, 0), Vector(507, 128, 0)),
    Part.ArcOfCircle(Part.Circle(Vector(507, 118, 0), Vector(0, 0, 1), 9), math.radians(90), math.radians(270)),
    Part.LineSegment(Vector(507, 109, 0), Vector(755, 109, 0)),
    Part.ArcOfCircle(Part.Circle(Vector(755, 118, 0), Vector(0, 0, 1), 9), math.radians(-90), math.radians(90)),
], False)
sketch11.addConstraint([
    Sketcher.Constraint("Tangent", 0, 2, 1, 1),
    Sketcher.Constraint("Tangent", 1, 2, 2, 1),
    Sketcher.Constraint("Tangent", 2, 2, 3, 1),
    Sketcher.Constraint("Tangent", 3, 2, 0, 1),
    Sketcher.Constraint("Horizontal", 0),
    Sketcher.Constraint("Horizontal", 2),
    Sketcher.Constraint("Radius", 1, 9.477675),
    Sketcher.Constraint("DistanceX", 0, 2, 0, 1, 248.315078),
    Sketcher.Constraint("DistanceX", -1, 1, 1, 3, 506.97399),
    Sketcher.Constraint("DistanceY", -1, 1, 1, 3, 118.349289),
])
pocket1 = doc.addObject("PartDesign::Pocket", "Pocket")
body.addObject(pocket1)
pocket1.Profile = sketch11
pocket1.setExpression("Length", "Params.pocket1_length")

sketch12 = doc.addObject("Sketcher::SketchObject", "Sketch011")
body.addObject(sketch12)
sketch12.AttachmentSupport = (doc.XY_Plane, [""])
sketch12.MapMode = "FlatFace"
sketch12.AttachmentOffset = App.Placement(Vector(0, 0, -13.5), App.Rotation())
add_polygon(sketch12, [(773, 125), (773, 113), (734, 113), (734, 125)])
sketch12.addConstraint([
    Sketcher.Constraint("Vertical", 0),
    Sketcher.Constraint("Horizontal", 1),
    Sketcher.Constraint("Vertical", 2),
    Sketcher.Constraint("Horizontal", 3),
    Sketcher.Constraint("DistanceX", 1, 2, 1, 1, 39.0),
    Sketcher.Constraint("DistanceY", 0, 2, 0, 1, 12.394538),
    Sketcher.Constraint("DistanceX", -1, 1, 0, 2, 772.515575),
    Sketcher.Constraint("DistanceY", -1, 1, 0, 2, 112.601625),
])
sketch12.setExpression("Constraints[8]", "Params.sketch12_width")
pocket2 = doc.addObject("PartDesign::Pocket", "Pocket001")
body.addObject(pocket2)
pocket2.Profile = sketch12
pocket2.setExpression("Length", "Params.pocket2_length")
pocket2.Reversed = True
doc.recompute()

linearpattern = doc.addObject("PartDesign::LinearPattern", "LinearPattern")
body.addObject(linearpattern)
linearpattern.Originals = [pocket2]
linearpattern.Direction = (doc.X_Axis, [""])
linearpattern.Mode = "offset"
linearpattern.setExpression("Offset", "Params.linearpattern_pitch")
linearpattern.Occurrences = 5
linearpattern.Reversed = True
body.Tip = linearpattern

sketch13 = doc.addObject("Sketcher::SketchObject", "Sketch012")
body.addObject(sketch13)
sketch13.AttachmentSupport = (doc.XY_Plane, [""])
sketch13.MapMode = "FlatFace"
sketch13.AttachmentOffset = App.Placement(Vector(0, 0, -15.5), App.Rotation())
add_polygon(sketch13, [(399, 139), (399, 126), (312, 126), (312, 139)])
sketch13.addConstraint([
    Sketcher.Constraint("Vertical", 0),
    Sketcher.Constraint("Horizontal", 1),
    Sketcher.Constraint("Vertical", 2),
    Sketcher.Constraint("Horizontal", 3),
    Sketcher.Constraint("DistanceX", 1, 2, 1, 1, 87.0),
    Sketcher.Constraint("DistanceY", 0, 2, 0, 1, 13.0),
    Sketcher.Constraint("DistanceX", -1, 1, 0, 2, 398.615433),
    Sketcher.Constraint("DistanceY", -1, 1, 0, 2, 126.449103),
])
sketch13.setExpression("Constraints[8]", "Params.sketch13_width")
sketch13.setExpression("Constraints[9]", "Params.sketch13_height")
pocket3 = doc.addObject("PartDesign::Pocket", "Pocket002")
body.addObject(pocket3)
pocket3.Profile = sketch13
pocket3.setExpression("Length", "Params.pocket3_length")
pocket3.Reversed = True

sketch14 = doc.addObject("Sketcher::SketchObject", "Sketch013")
body.addObject(sketch14)
sketch14.AttachmentSupport = (doc.XY_Plane, [""])
sketch14.MapMode = "FlatFace"
sketch14.AttachmentOffset = App.Placement(Vector(0, 0, 15.5), App.Rotation())
add_polygon(sketch14, [(351, 146), (351, 129), (398, 129), (398, 146)])
sketch14.addConstraint([
    Sketcher.Constraint("Vertical", 0),
    Sketcher.Constraint("Horizontal", 1),
    Sketcher.Constraint("Vertical", 2),
    Sketcher.Constraint("Horizontal", 3),
    Sketcher.Constraint("DistanceX", 1, 1, 1, 2, 47.0),
    Sketcher.Constraint("DistanceY", 0, 2, 0, 1, 17.0),
    Sketcher.Constraint("DistanceX", -1, 1, 0, 2, 351.133368),
    Sketcher.Constraint("DistanceY", -1, 1, 0, 2, 129.254171),
])
sketch14.setExpression("Constraints[8]", "Params.sketch14_width")
sketch14.setExpression("Constraints[9]", "Params.sketch14_height")
pocket4 = doc.addObject("PartDesign::Pocket", "Pocket003")
body.addObject(pocket4)
pocket4.Profile = sketch14
pocket4.setExpression("Length", "Params.pocket4_length")
body2 = doc.addObject("PartDesign::Body", "Body001")

sketch15 = doc.addObject("Sketcher::SketchObject", "Sketch014")
body2.addObject(sketch15)
sketch15.AttachmentSupport = (doc.getObject("XY_Plane001"), [""])
sketch15.MapMode = "FlatFace"
sketch15.addGeometry([
    Part.LineSegment(Vector(519.9, 153.5, 0), Vector(518.9, 157.3, 0)),
    Part.LineSegment(Vector(518.9, 157.3, 0), Vector(461, 162.2, 0)),
    Part.LineSegment(Vector(461, 162.2, 0), Vector(457.4, 176.2, 0)),
    Part.LineSegment(Vector(457.4, 176.2, 0), Vector(455, 174.9, 0)),
    Part.LineSegment(Vector(455, 174.9, 0), Vector(455, 162.2, 0)),
    Part.ArcOfCircle(Part.Circle(Vector(455, 159.1, 0), Vector(0, 0, 1), 3.1), math.radians(90), math.radians(180)),
    Part.ArcOfCircle(Part.Circle(Vector(455, 159.1, 0), Vector(0, 0, 1), 3.1), math.radians(180), math.radians(270)),
    Part.LineSegment(Vector(455, 155.9, 0), Vector(461, 152.8, 0)),
    Part.LineSegment(Vector(461, 152.8, 0), Vector(519.9, 153.5, 0)),
], False)
sketch15.addConstraint([
    Sketcher.Constraint("Coincident", 0, 2, 1, 1),
    Sketcher.Constraint("Coincident", 1, 2, 2, 1),
    Sketcher.Constraint("Coincident", 2, 2, 3, 1),
    Sketcher.Constraint("Coincident", 3, 2, 4, 1),
    Sketcher.Constraint("Coincident", 4, 2, 5, 1),
    Sketcher.Constraint("Tangent", 5, 2, 6, 1),
    Sketcher.Constraint("Coincident", 6, 2, 7, 1),
    Sketcher.Constraint("Coincident", 7, 2, 8, 1),
    Sketcher.Constraint("Coincident", 8, 2, 0, 1),
    Sketcher.Constraint("Vertical", 4),
    Sketcher.Constraint("Equal", 5, 6),
    Sketcher.Constraint("Parallel", 0, 2),
    Sketcher.Constraint("Horizontal", 1, 2, 4, 2),
    Sketcher.Constraint("Horizontal", 6, 3, 5, 2),
    Sketcher.Constraint("Vertical", 6, 3, 3, 2),
    Sketcher.Constraint("Vertical", 4, 2, 6, 2),
    Sketcher.Constraint("Vertical", 1, 2, 7, 2),
    Sketcher.Constraint("Radius", 5, 3.110801),
    Sketcher.Constraint("DistanceY", 4, 2, 4, 1, 12.775918),
    Sketcher.Constraint("Distance", 7, 6.69229),
    Sketcher.Constraint("Distance", 8, 58.908341),
    Sketcher.Constraint("DistanceX", -1, 1, 5, 3, 455.04659),
    Sketcher.Constraint("DistanceX", -1, 1, 1, 2, 460.965808),
    Sketcher.Constraint("DistanceY", -1, 1, 3, 2, 174.936862),
    Sketcher.Constraint("DistanceY", -1, 1, 8, 2, 153.534721),
    Sketcher.Constraint("DistanceX", 1, 2, 0, 2, 57.950829),
    Sketcher.Constraint("DistanceX", 2, 2, 1, 2, 3.551632),
    Sketcher.Constraint("DistanceY", 1, 2, 2, 2, 14.030131),
])
pad10 = doc.addObject("PartDesign::Pad", "Pad009")
body2.addObject(pad10)
pad10.Profile = sketch15
pad10.setExpression("Length", "Params.pad10_length")
pad10.Midplane = True

doc.recompute()
